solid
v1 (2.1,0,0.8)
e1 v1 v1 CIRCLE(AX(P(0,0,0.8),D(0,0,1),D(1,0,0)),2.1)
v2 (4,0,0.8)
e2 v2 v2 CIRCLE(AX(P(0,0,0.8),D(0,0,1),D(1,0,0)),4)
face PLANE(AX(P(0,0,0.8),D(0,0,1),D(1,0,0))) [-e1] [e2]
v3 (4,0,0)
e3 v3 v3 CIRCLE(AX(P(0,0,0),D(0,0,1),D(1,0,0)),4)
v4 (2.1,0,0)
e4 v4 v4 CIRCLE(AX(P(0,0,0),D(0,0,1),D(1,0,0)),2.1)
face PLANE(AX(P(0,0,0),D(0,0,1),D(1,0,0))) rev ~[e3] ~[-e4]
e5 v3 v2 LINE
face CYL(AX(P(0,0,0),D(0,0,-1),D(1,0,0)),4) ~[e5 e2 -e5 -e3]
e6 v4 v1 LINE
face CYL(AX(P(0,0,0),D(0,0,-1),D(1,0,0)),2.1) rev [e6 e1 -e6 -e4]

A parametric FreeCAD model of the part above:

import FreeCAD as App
import Part
import Sketcher
from FreeCAD import Vector
Q = App.Units.Quantity

doc = App.newDocument("Part")
params = doc.addObject("Spreadsheet::Sheet", "Params")
for row, (alias, value) in enumerate([
    ("sketch1_diameter", "8 mm"),
    ("sketch1_diameter2", "4.2 mm"),
    ("pad1_length", "0.8 mm"),
], start=1):
    params.set(f"A{row}", alias)
    params.set(f"B{row}", "=" + value)
    params.setAlias(f"B{row}", alias)

body = doc.addObject("PartDesign::Body", "Body")

sketch1 = doc.addObject("Sketcher::SketchObject", "Sketch")
body.addObject(sketch1)
sketch1.AttachmentSupport = (doc.XY_Plane, [""])
sketch1.MapMode = "FlatFace"
sketch1.addGeometry([
    Part.Circle(Vector(0, 0, 0), Vector(0, 0, 1), 4),
    Part.Circle(Vector(0, 0, 0), Vector(0, 0, 1), 2.1),
], False)
sketch1.addConstraint([
    Sketcher.Constraint("Coincident", 0, 3, -1, 1),
    Sketcher.Constraint("Coincident", 1, 3, -1, 1),
    Sketcher.Constraint("Diameter", 0, Q("8 mm")),
    Sketcher.Constraint("Diameter", 1, Q("4.2 mm")),
])
sketch1.setExpression("Constraints[2]", "Params.sketch1_diameter")
sketch1.setExpression("Constraints[3]", "Params.sketch1_diameter2")
pad1 = doc.addObject("PartDesign::Pad", "Pad")
body.addObject(pad1)
pad1.Profile = sketch1
pad1.setExpression("Length", "Params.pad1_length")

doc.recompute()
